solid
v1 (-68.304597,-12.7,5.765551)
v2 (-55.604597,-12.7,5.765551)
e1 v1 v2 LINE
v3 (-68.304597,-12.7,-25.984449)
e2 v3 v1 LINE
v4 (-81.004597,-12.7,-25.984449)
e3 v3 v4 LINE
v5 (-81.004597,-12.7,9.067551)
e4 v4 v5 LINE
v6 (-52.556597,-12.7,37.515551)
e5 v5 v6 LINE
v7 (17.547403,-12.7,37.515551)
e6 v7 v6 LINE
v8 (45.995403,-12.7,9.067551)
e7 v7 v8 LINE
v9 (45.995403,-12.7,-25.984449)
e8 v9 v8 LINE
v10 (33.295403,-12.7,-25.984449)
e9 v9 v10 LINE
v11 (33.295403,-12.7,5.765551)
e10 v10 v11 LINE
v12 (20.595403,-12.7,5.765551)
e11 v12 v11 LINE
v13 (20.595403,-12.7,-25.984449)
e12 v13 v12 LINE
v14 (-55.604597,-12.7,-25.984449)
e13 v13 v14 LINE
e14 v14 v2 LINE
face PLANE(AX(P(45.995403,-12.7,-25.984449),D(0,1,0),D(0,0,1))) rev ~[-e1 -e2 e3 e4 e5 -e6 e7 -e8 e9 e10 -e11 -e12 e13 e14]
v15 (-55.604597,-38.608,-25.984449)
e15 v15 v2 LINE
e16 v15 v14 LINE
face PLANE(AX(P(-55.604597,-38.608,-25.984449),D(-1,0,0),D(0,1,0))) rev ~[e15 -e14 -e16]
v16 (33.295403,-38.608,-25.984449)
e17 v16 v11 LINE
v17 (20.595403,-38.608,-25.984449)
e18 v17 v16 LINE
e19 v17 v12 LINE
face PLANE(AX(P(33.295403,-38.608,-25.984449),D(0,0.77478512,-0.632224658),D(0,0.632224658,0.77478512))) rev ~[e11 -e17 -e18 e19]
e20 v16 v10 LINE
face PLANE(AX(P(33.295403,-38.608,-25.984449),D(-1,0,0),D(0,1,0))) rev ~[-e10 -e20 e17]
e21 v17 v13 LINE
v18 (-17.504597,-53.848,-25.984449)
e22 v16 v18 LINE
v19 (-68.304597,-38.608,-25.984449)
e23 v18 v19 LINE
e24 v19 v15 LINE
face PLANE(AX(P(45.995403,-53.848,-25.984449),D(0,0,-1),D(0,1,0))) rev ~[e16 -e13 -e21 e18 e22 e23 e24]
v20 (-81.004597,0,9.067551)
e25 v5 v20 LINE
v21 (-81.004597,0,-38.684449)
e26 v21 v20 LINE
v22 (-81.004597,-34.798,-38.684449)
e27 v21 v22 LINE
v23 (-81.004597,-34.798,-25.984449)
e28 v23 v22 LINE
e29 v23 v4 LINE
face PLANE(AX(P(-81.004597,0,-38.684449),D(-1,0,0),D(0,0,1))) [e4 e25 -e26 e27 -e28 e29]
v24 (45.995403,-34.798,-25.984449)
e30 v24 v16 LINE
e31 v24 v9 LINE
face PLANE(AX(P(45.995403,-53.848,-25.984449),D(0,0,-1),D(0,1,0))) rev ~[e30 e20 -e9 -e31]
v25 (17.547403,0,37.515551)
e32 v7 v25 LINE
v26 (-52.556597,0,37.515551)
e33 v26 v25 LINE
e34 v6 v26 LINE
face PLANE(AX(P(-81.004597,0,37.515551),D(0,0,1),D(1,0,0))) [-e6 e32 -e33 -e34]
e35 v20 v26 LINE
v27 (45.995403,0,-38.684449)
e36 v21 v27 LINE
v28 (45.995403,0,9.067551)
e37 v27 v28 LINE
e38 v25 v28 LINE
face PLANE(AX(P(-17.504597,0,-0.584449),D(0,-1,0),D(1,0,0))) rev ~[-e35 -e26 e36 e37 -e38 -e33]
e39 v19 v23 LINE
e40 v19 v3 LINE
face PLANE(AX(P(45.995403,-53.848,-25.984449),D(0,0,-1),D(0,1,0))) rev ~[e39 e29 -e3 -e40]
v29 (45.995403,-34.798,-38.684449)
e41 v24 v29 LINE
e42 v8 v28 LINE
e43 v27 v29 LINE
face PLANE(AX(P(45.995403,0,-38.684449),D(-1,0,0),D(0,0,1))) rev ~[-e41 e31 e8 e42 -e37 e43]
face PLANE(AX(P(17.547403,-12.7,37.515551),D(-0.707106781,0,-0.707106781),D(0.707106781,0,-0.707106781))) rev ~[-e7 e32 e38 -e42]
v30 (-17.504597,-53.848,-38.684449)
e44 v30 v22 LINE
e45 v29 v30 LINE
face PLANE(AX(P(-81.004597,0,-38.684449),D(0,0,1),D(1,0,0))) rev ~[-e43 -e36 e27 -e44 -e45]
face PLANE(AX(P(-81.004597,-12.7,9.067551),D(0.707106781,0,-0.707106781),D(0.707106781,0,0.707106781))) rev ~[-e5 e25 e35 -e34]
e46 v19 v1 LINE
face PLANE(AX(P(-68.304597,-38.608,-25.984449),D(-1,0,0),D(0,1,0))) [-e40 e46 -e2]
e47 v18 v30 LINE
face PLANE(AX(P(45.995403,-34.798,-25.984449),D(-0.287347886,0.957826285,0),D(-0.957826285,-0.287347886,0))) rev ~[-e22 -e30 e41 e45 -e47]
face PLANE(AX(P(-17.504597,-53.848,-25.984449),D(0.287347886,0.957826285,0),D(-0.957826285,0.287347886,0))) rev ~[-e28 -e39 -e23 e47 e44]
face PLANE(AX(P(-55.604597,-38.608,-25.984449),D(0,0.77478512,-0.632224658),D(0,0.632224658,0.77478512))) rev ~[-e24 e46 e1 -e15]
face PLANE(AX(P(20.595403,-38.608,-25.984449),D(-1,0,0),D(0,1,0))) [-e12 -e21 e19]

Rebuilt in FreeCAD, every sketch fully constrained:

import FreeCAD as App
import Part
import Sketcher
Q = App.Units.Quantity

doc = App.newDocument("Part")
body = doc.addObject("PartDesign::Body", "Body")

sketch1 = doc.addObject("Sketcher::SketchObject", "Sketch")
body.addObject(sketch1)
sketch1.AttachmentSupport = (doc.XZ_Plane, [""])
sketch1.MapMode = "FlatFace"
sketch1.addGeometry(Part.LineSegment(App.Vector(-81.004597, 37.515551, 0), App.Vector(-81.004597, -38.684449, 0)), False)
sketch1.addGeometry(Part.LineSegment(App.Vector(-81.004597, -38.684449, 0), App.Vector(45.995403, -38.684449, 0)), False)
sketch1.addGeometry(Part.LineSegment(App.Vector(45.995403, -38.684449, 0), App.Vector(45.995403, 37.515551, 0)), False)
sketch1.addGeometry(Part.LineSegment(App.Vector(45.995403, 37.515551, 0), App.Vector(-81.004597, 37.515551, 0)), False)
sketch1.addConstraint(Sketcher.Constraint("Coincident", 0, 2, 1, 1))
sketch1.addConstraint(Sketcher.Constraint("Coincident", 1, 2, 2, 1))
sketch1.addConstraint(Sketcher.Constraint("Coincident", 2, 2, 3, 1))
sketch1.addConstraint(Sketcher.Constraint("Coincident", 3, 2, 0, 1))
sketch1.addConstraint(Sketcher.Constraint("Vertical", 0))
sketch1.addConstraint(Sketcher.Constraint("Horizontal", 1))
sketch1.addConstraint(Sketcher.Constraint("Vertical", 2))
sketch1.addConstraint(Sketcher.Constraint("Horizontal", 3))
sketch1.addConstraint(Sketcher.Constraint("DistanceX", 1, 1, 1, 2, Q("5 in")))
sketch1.addConstraint(Sketcher.Constraint("DistanceY", 0, 2, 0, 1, Q("3 in")))
sketch1.addConstraint(Sketcher.Constraint("DistanceY", 0, 2, -1, 1, Q("38.684449 mm")))
sketch1.addConstraint(Sketcher.Constraint("DistanceX", 0, 2, -1, 1, Q("81.004597 mm")))
pad1 = doc.addObject("PartDesign::Pad", "Pad")
body.addObject(pad1)
pad1.Profile = sketch1
pad1.Length = Q("2.12 in")

sketch2 = doc.addObject("Sketcher::SketchObject", "Sketch001")
body.addObject(sketch2)
sketch2.AttachmentSupport = (doc.YZ_Plane, [""])
sketch2.MapMode = "FlatFace"
sketch2.AttachmentOffset = App.Placement(App.Vector(0, 0, 45.995403), App.Rotation())
sketch2.addGeometry(Part.LineSegment(App.Vector(-53.848, 37.515551, 0), App.Vector(-53.848, -25.984449, 0)), False)
sketch2.addGeometry(Part.LineSegment(App.Vector(-53.848, -25.984449, 0), App.Vector(-12.7, -25.984449, 0)), False)
sketch2.addGeometry(Part.LineSegment(App.Vector(-12.7, -25.984449, 0), App.Vector(-12.7, 37.515551, 0)), False)
sketch2.addGeometry(Part.LineSegment(App.Vector(-12.7, 37.515551, 0), App.Vector(-53.848, 37.515551, 0)), False)
sketch2.addConstraint(Sketcher.Constraint("Coincident", 0, 2, 1, 1))
sketch2.addConstraint(Sketcher.Constraint("Coincident", 1, 2, 2, 1))
sketch2.addConstraint(Sketcher.Constraint("Coincident", 2, 2, 3, 1))
sketch2.addConstraint(Sketcher.Constraint("Coincident", 3, 2, 0, 1))
sketch2.addConstraint(Sketcher.Constraint("Vertical", 0))
sketch2.addConstraint(Sketcher.Constraint("Horizontal", 1))
sketch2.addConstraint(Sketcher.Constraint("Vertical", 2))
sketch2.addConstraint(Sketcher.Constraint("Horizontal", 3))
sketch2.addConstraint(Sketcher.Constraint("DistanceY", 0, 2, 0, 1, Q("2.5 in")))
sketch2.addConstraint(Sketcher.Constraint("DistanceX", 1, 1, 1, 2, Q("1.62 in")))
sketch2.addConstraint(Sketcher.Constraint("DistanceX", 1, 2, -1, 1, Q("0.5 in")))
sketch2.addConstraint(Sketcher.Constraint("DistanceY", 0, 2, -1, 1, Q("25.984449 mm")))
pocket1 = doc.addObject("PartDesign::Pocket", "Pocket")
body.addObject(pocket1)
pocket1.Profile = sketch2
pocket1.Length = Q("5 in")

sketch3 = doc.addObject("Sketcher::SketchObject", "Sketch002")
body.addObject(sketch3)
sketch3.AttachmentSupport = (doc.XZ_Plane, [""])
sketch3.MapMode = "FlatFace"
sketch3.AttachmentOffset = App.Placement(App.Vector(0, 0, 0.5 * 25.4), App.Rotation())
sketch3.addGeometry(Part.LineSegment(App.Vector(45.995403, 9.067551, 0), App.Vector(45.995403, 37.515551, 0)), False)
sketch3.addGeometry(Part.LineSegment(App.Vector(45.995403, 37.515551, 0), App.Vector(17.547403, 37.515551, 0)), False)
sketch3.addGeometry(Part.LineSegment(App.Vector(17.547403, 37.515551, 0), App.Vector(45.995403, 9.067551, 0)), False)
sketch3.addGeometry(Part.LineSegment(App.Vector(-52.556597, 37.515551, 0), App.Vector(-81.004597, 37.515551, 0)), False)
sketch3.addGeometry(Part.LineSegment(App.Vector(-81.004597, 37.515551, 0), App.Vector(-81.004597, 9.067551, 0)), False)
sketch3.addGeometry(Part.LineSegment(App.Vector(-81.004597, 9.067551, 0), App.Vector(-52.556597, 37.515551, 0)), False)
sketch3.addConstraint(Sketcher.Constraint("Coincident", 0, 2, 1, 1))
sketch3.addConstraint(Sketcher.Constraint("Coincident", 1, 2, 2, 1))
sketch3.addConstraint(Sketcher.Constraint("Coincident", 2, 2, 0, 1))
sketch3.addConstraint(Sketcher.Constraint("Coincident", 3, 2, 4, 1))
sketch3.addConstraint(Sketcher.Constraint("Coincident", 4, 2, 5, 1))
sketch3.addConstraint(Sketcher.Constraint("Coincident", 5, 2, 3, 1))
sketch3.addConstraint(Sketcher.Constraint("Vertical", 0))
sketch3.addConstraint(Sketcher.Constraint("Horizontal", 1))
sketch3.addConstraint(Sketcher.Constraint("Horizontal", 3))
sketch3.addConstraint(Sketcher.Constraint("Vertical", 4))
sketch3.addConstraint(Sketcher.Constraint("Perpendicular", 2, 5))
sketch3.addConstraint(Sketcher.Constraint("Horizontal", 1, 2, 3, 2))
sketch3.addConstraint(Sketcher.Constraint("Horizontal", 2, 2, 4, 2))
sketch3.addConstraint(Sketcher.Constraint("Equal", 1, 3))
sketch3.addConstraint(Sketcher.Constraint("DistanceX", 3, 2, 0, 2, Q("5 in")))
sketch3.addConstraint(Sketcher.Constraint("DistanceX", 1, 2, 1, 1, Q("1.12 in")))
sketch3.addConstraint(Sketcher.Constraint("DistanceY", -1, 1, 0, 2, Q("37.515551 mm")))
sketch3.addConstraint(Sketcher.Constraint("DistanceX", -1, 1, 0, 2, Q("45.995403 mm")))
pocket2 = doc.addObject("PartDesign::Pocket", "Pocket001")
body.addObject(pocket2)
pocket2.Profile = sketch3
pocket2.Length = Q("0.5 in")

sketch4 = doc.addObject("Sketcher::SketchObject", "Sketch003")
body.addObject(sketch4)
sketch4.AttachmentSupport = (doc.XY_Plane, [""])
sketch4.MapMode = "FlatFace"
sketch4.AttachmentOffset = App.Placement(App.Vector(0, 0, -25.984449), App.Rotation())
sketch4.addGeometry(Part.LineSegment(App.Vector(45.995403, -34.798, 0), App.Vector(-17.504597, -53.848, 0)), False)
sketch4.addGeometry(Part.LineSegment(App.Vector(-17.504597, -53.848, 0), App.Vector(45.995403, -53.848, 0)), False)
sketch4.addGeometry(Part.LineSegment(App.Vector(45.995403, -53.848, 0), App.Vector(45.995403, -34.798, 0)), False)
sketch4.addGeometry(Part.LineSegment(App.Vector(-81.004597, -53.848, 0), App.Vector(-17.504597, -53.848, 0)), False)
sketch4.addGeometry(Part.LineSegment(App.Vector(-17.504597, -53.848, 0), App.Vector(-81.004597, -34.798, 0)), False)
sketch4.addGeometry(Part.LineSegment(App.Vector(-81.004597, -34.798, 0), App.Vector(-81.004597, -53.848, 0)), False)
sketch4.addConstraint(Sketcher.Constraint("Coincident", 0, 2, 1, 1))
sketch4.addConstraint(Sketcher.Constraint("Coincident", 1, 2, 2, 1))
sketch4.addConstraint(Sketcher.Constraint("Coincident", 2, 2, 0, 1))
sketch4.addConstraint(Sketcher.Constraint("Coincident", 3, 2, 4, 1))
sketch4.addConstraint(Sketcher.Constraint("Coincident", 4, 2, 5, 1))
sketch4.addConstraint(Sketcher.Constraint("Coincident", 5, 2, 3, 1))
sketch4.addConstraint(Sketcher.Constraint("Horizontal", 1))
sketch4.addConstraint(Sketcher.Constraint("Vertical", 2))
sketch4.addConstraint(Sketcher.Constraint("Horizontal", 3))
sketch4.addConstraint(Sketcher.Constraint("Vertical", 5))
sketch4.addConstraint(Sketcher.Constraint("Coincident", 3, 2, 0, 2))
sketch4.addConstraint(Sketcher.Constraint("Horizontal", 2, 2, 4, 2))
sketch4.addConstraint(Sketcher.Constraint("Equal", 1, 3))
sketch4.addConstraint(Sketcher.Constraint("DistanceX", 1, 1, 1, 2, Q("2.5 in")))
sketch4.addConstraint(Sketcher.Constraint("DistanceY", 2, 1, 2, 2, Q("0.75 in")))
sketch4.addConstraint(Sketcher.Constraint("DistanceY", 0, 2, -1, 1, Q("2.12 in")))
sketch4.addConstraint(Sketcher.Constraint("DistanceX", 0, 2, -1, 1, Q("17.504597 mm")))
pocket3 = doc.addObject("PartDesign::Pocket", "Pocket002")
body.addObject(pocket3)
pocket3.Profile = sketch4
pocket3.Length = Q("0.5 in")

sketch5 = doc.addObject("Sketcher::SketchObject", "Sketch004")
body.addObject(sketch5)
sketch5.AttachmentSupport = (doc.XY_Plane, [""])
sketch5.MapMode = "FlatFace"
sketch5.AttachmentOffset = App.Placement(App.Vector(0, 0, -25.984449), App.Rotation())
sketch5.addGeometry(Part.LineSegment(App.Vector(20.595403, -12.7, 0), App.Vector(20.595403, -38.608, 0)), False)
sketch5.addGeometry(Part.LineSegment(App.Vector(20.595403, -38.608, 0), App.Vector(33.295403, -38.608, 0)), False)
sketch5.addGeometry(Part.LineSegment(App.Vector(33.295403, -38.608, 0), App.Vector(33.295403, -12.7, 0)), False)
sketch5.addGeometry(Part.LineSegment(App.Vector(33.295403, -12.7, 0), App.Vector(20.595403, -12.7, 0)), False)
sketch5.addGeometry(Part.LineSegment(App.Vector(-68.304597, -12.7, 0), App.Vector(-68.304597, -38.608, 0)), False)
sketch5.addGeometry(Part.LineSegment(App.Vector(-68.304597, -38.608, 0), App.Vector(-55.604597, -38.608, 0)), False)
sketch5.addGeometry(Part.LineSegment(App.Vector(-55.604597, -38.608, 0), App.Vector(-55.604597, -12.7, 0)), False)
sketch5.addGeometry(Part.LineSegment(App.Vector(-55.604597, -12.7, 0), App.Vector(-68.304597, -12.7, 0)), False)
sketch5.addConstraint(Sketcher.Constraint("Coincident", 0, 2, 1, 1))
sketch5.addConstraint(Sketcher.Constraint("Coincident", 1, 2, 2, 1))
sketch5.addConstraint(Sketcher.Constraint("Coincident", 2, 2, 3, 1))
sketch5.addConstraint(Sketcher.Constraint("Coincident", 3, 2, 0, 1))
sketch5.addConstraint(Sketcher.Constraint("Coincident", 4, 2, 5, 1))
sketch5.addConstraint(Sketcher.Constraint("Coincident", 5, 2, 6, 1))
sketch5.addConstraint(Sketcher.Constraint("Coincident", 6, 2, 7, 1))
sketch5.addConstraint(Sketcher.Constraint("Coincident", 7, 2, 4, 1))
sketch5.addConstraint(Sketcher.Constraint("Vertical", 0))
sketch5.addConstraint(Sketcher.Constraint("Horizontal", 1))
sketch5.addConstraint(Sketcher.Constraint("Vertical", 2))
sketch5.addConstraint(Sketcher.Constraint("Horizontal", 3))
sketch5.addConstraint(Sketcher.Constraint("Vertical", 4))
sketch5.addConstraint(Sketcher.Constraint("Horizontal", 5))
sketch5.addConstraint(Sketcher.Constraint("Vertical", 6))
sketch5.addConstraint(Sketcher.Constraint("Horizontal", 7))
sketch5.addConstraint(Sketcher.Constraint("Horizontal", 1, 2, 4, 2))
sketch5.addConstraint(Sketcher.Constraint("Horizontal", 3, 2, 6, 2))
sketch5.addConstraint(Sketcher.Constraint("Equal", 3, 5))
sketch5.addConstraint(Sketcher.Constraint("DistanceX", 1, 1, 1, 2, Q("0.5 in")))
sketch5.addConstraint(Sketcher.Constraint("DistanceX", 4, 2, 1, 2, Q("4 in")))
sketch5.addConstraint(Sketcher.Constraint("DistanceY", 0, 2, 0, 1, Q("1.02 in")))
sketch5.addConstraint(Sketcher.Constraint("DistanceY", 2, 2, -1, 1, Q("0.5 in")))
sketch5.addConstraint(Sketcher.Constraint("DistanceX", -1, 1, 0, 2, Q("20.595403 mm")))
pad2 = doc.addObject("PartDesign::Pad", "Pad001")
body.addObject(pad2)
pad2.Profile = sketch5
pad2.Length = Q("1.25 in")

sketch6 = doc.addObject("Sketcher::SketchObject", "Sketch005")
body.addObject(sketch6)
sketch6.AttachmentSupport = (doc.YZ_Plane, [""])
sketch6.MapMode = "FlatFace"
sketch6.AttachmentOffset = App.Placement(App.Vector(0, 0, -55.604597), App.Rotation())
sketch6.addGeometry(Part.LineSegment(App.Vector(-38.608, -25.984449, 0), App.Vector(-12.7, 5.765551, 0)), False)
sketch6.addGeometry(Part.LineSegment(App.Vector(-12.7, 5.765551, 0), App.Vector(-38.608, 5.765551, 0)), False)
sketch6.addGeometry(Part.LineSegment(App.Vector(-38.608, 5.765551, 0), App.Vector(-38.608, -25.984449, 0)), False)
sketch6.addConstraint(Sketcher.Constraint("Coincident", 0, 2, 1, 1))
sketch6.addConstraint(Sketcher.Constraint("Coincident", 1, 2, 2, 1))
sketch6.addConstraint(Sketcher.Constraint("Coincident", 2, 2, 0, 1))
sketch6.addConstraint(Sketcher.Constraint("Horizontal", 1))
sketch6.addConstraint(Sketcher.Constraint("Vertical", 2))
sketch6.addConstraint(Sketcher.Constraint("DistanceX", 1, 2, 1, 1, Q("1.02 in")))
sketch6.addConstraint(Sketcher.Constraint("DistanceY", 2, 2, 2, 1, Q("1.25 in")))
sketch6.addConstraint(Sketcher.Constraint("DistanceX", 0, 2, -1, 1, Q("0.5 in")))
sketch6.addConstraint(Sketcher.Constraint("DistanceY", -1, 1, 0, 2, Q("5.765551 mm")))
pocket4 = doc.addObject("PartDesign::Pocket", "Pocket003")
body.addObject(pocket4)
pocket4.Profile = sketch6
pocket4.Length = Q("0.5 in")

sketch7 = doc.addObject("Sketcher::SketchObject", "Sketch006")
body.addObject(sketch7)
sketch7.AttachmentSupport = (doc.YZ_Plane, [""])
sketch7.MapMode = "FlatFace"
sketch7.AttachmentOffset = App.Placement(App.Vector(0, 0, 33.295403), App.Rotation())
sketch7.addGeometry(Part.LineSegment(App.Vector(-38.608, -25.984449, 0), App.Vector(-12.7, 5.765551, 0)), False)
sketch7.addGeometry(Part.LineSegment(App.Vector(-12.7, 5.765551, 0), App.Vector(-38.608, 5.765551, 0)), False)
sketch7.addGeometry(Part.LineSegment(App.Vector(-38.608, 5.765551, 0), App.Vector(-38.608, -25.984449, 0)), False)
sketch7.addConstraint(Sketcher.Constraint("Coincident", 0, 2, 1, 1))
sketch7.addConstraint(Sketcher.Constraint("Coincident", 1, 2, 2, 1))
sketch7.addConstraint(Sketcher.Constraint("Coincident", 2, 2, 0, 1))
sketch7.addConstraint(Sketcher.Constraint("Horizontal", 1))
sketch7.addConstraint(Sketcher.Constraint("Vertical", 2))
sketch7.addConstraint(Sketcher.Constraint("DistanceX", 1, 2, 1, 1, Q("1.02 in")))
sketch7.addConstraint(Sketcher.Constraint("DistanceY", 2, 2, 2, 1, Q("1.25 in")))
sketch7.addConstraint(Sketcher.Constraint("DistanceX", 0, 2, -1, 1, Q("0.5 in")))
sketch7.addConstraint(Sketcher.Constraint("DistanceY", -1, 1, 0, 2, Q("5.765551 mm")))
pocket5 = doc.addObject("PartDesign::Pocket", "Pocket004")
body.addObject(pocket5)
pocket5.Profile = sketch7
pocket5.Length = Q("0.5 in")

doc.recompute()
